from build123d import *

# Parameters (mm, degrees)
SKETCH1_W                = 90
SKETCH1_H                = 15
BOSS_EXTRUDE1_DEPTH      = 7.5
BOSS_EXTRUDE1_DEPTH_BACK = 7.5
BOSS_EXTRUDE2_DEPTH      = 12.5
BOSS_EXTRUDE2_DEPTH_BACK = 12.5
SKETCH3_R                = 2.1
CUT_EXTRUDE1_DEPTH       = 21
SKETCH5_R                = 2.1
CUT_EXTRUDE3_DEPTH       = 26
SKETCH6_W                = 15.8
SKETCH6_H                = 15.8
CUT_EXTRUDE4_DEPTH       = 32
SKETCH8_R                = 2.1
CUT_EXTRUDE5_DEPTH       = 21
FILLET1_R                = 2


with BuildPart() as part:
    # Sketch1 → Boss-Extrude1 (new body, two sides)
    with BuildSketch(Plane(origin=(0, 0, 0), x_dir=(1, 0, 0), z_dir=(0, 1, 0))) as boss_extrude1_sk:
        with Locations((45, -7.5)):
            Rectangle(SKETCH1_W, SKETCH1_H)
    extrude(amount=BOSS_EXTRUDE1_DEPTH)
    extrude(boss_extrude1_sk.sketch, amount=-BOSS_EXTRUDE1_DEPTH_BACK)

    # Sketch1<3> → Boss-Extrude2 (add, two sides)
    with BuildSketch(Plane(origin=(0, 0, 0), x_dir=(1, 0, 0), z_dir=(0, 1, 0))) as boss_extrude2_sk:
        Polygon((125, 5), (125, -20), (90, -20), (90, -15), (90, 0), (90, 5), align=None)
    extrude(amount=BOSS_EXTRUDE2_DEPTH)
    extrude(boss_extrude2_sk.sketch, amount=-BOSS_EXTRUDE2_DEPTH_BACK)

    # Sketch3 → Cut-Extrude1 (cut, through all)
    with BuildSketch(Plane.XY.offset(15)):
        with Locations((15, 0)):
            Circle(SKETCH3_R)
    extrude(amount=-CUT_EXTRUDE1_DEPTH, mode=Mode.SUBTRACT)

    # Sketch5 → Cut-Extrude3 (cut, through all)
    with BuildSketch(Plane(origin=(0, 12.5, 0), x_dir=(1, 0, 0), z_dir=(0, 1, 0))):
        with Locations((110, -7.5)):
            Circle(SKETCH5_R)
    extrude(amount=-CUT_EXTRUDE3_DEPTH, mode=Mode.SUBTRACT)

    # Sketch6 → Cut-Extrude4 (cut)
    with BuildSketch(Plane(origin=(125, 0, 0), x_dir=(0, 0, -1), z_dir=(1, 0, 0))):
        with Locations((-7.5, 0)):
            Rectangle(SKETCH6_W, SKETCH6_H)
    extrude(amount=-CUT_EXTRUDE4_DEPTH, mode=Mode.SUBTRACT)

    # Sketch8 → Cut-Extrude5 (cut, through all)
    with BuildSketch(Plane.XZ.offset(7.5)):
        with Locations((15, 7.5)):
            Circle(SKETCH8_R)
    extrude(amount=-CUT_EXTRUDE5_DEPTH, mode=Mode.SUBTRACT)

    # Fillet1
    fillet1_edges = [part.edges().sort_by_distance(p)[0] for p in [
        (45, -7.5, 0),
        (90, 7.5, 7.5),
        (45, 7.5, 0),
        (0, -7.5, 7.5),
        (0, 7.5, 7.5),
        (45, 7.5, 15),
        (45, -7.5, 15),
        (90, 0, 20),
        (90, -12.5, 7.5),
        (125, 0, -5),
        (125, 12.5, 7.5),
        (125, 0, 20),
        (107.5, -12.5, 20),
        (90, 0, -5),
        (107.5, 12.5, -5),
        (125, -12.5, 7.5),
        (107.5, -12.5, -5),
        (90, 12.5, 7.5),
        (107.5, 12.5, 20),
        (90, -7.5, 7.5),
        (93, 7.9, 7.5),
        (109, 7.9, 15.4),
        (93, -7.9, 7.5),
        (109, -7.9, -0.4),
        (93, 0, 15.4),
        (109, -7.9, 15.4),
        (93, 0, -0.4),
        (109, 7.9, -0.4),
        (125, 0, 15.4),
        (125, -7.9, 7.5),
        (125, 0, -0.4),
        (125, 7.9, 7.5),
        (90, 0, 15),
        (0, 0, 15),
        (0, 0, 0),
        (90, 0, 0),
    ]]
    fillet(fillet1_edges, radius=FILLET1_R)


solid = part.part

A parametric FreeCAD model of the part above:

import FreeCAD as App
import Part
import Sketcher


def edges_at(feature, points):
    """Names of the edges that pass closest to the given points."""
    edges = feature.Shape.Edges
    near = lambda p: min(range(len(edges)), key=lambda i: edges[i].distToShape(Part.Vertex(*p))[0])
    return sorted({f"Edge{near(p) + 1}" for p in points})

doc = App.newDocument("Part")
body = doc.addObject("PartDesign::Body", "Body")

# Sketch on XZ plane
sketch1 = body.newObject("Sketcher::SketchObject", "Sketch")
sketch1.AttachmentSupport = (doc.getObject("XZ_Plane"), [""])
sketch1.MapMode = "FlatFace"
sketch1.addGeometry([
    Part.LineSegment(App.Vector(0, 0, 0), App.Vector(0, 15, 0)),
    Part.LineSegment(App.Vector(0, 15, 0), App.Vector(90, 15, 0)),
    Part.LineSegment(App.Vector(90, 15, 0), App.Vector(90, 0, 0)),
    Part.LineSegment(App.Vector(90, 0, 0), App.Vector(0, 0, 0)),
], False)
sketch1.addConstraint([
    Sketcher.Constraint("Coincident", 0, 2, 1, 1),
    Sketcher.Constraint("Coincident", 1, 2, 2, 1),
    Sketcher.Constraint("Coincident", 2, 2, 3, 1),
    Sketcher.Constraint("Coincident", 3, 2, 0, 1),
    Sketcher.Constraint("Vertical", 0),
    Sketcher.Constraint("Horizontal", 1),
    Sketcher.Constraint("Vertical", 2),
    Sketcher.Constraint("Horizontal", 3),
    Sketcher.Constraint("Coincident", 3, 2, -1, 1),
    Sketcher.Constraint("DistanceX", 1, 1, 1, 2, 90.0),
    Sketcher.Constraint("DistanceY", 0, 1, 0, 2, 15.0),
])
pad1 = body.newObject("PartDesign::Pad", "Pad")
pad1.Profile = sketch1
pad1.Type = "TwoLengths"
pad1.Length = 7.5
pad1.Length2 = 7.5
pad1.Reversed = True

# Sketch on XZ plane
sketch2 = body.newObject("Sketcher::SketchObject", "Sketch001")
sketch2.AttachmentSupport = (doc.getObject("XZ_Plane"), [""])
sketch2.MapMode = "FlatFace"
sketch2.addGeometry([
    Part.LineSegment(App.Vector(125, 20, 0), App.Vector(125, -5, 0)),
    Part.LineSegment(App.Vector(125, -5, 0), App.Vector(90, -5, 0)),
    Part.LineSegment(App.Vector(90, -5, 0), App.Vector(90, 20, 0)),
    Part.LineSegment(App.Vector(90, 20, 0), App.Vector(125, 20, 0)),
], False)
sketch2.addConstraint([
    Sketcher.Constraint("Coincident", 0, 2, 1, 1),
    Sketcher.Constraint("Coincident", 1, 2, 2, 1),
    Sketcher.Constraint("Coincident", 2, 2, 3, 1),
    Sketcher.Constraint("Coincident", 3, 2, 0, 1),
    Sketcher.Constraint("Vertical", 0),
    Sketcher.Constraint("Horizontal", 1),
    Sketcher.Constraint("Vertical", 2),
    Sketcher.Constraint("Horizontal", 3),
    Sketcher.Constraint("DistanceX", 1, 2, 1, 1, 35.0),
    Sketcher.Constraint("DistanceY", 0, 2, 0, 1, 25.0),
    Sketcher.Constraint("DistanceX", -1, 1, 0, 2, 125.0),
    Sketcher.Constraint("DistanceY", 0, 2, -1, 1, 5.0),
])
pad2 = body.newObject("PartDesign::Pad", "Pad001")
pad2.Profile = sketch2
pad2.Type = "TwoLengths"
pad2.Length = 12.5
pad2.Length2 = 12.5
pad2.Reversed = True

# Sketch on XY plane
sketch3 = body.newObject("Sketcher::SketchObject", "Sketch002")
sketch3.AttachmentSupport = (doc.getObject("XY_Plane"), [""])
sketch3.MapMode = "FlatFace"
sketch3.AttachmentOffset = App.Placement(App.Vector(0, 0, 15), App.Rotation())
sketch3.addGeometry(Part.Circle(App.Vector(15, 0, 0), App.Vector(0, 0, 1), 2.1), False)
sketch3.addConstraint([
    Sketcher.Constraint("PointOnObject", 0, 3, -1),
    Sketcher.Constraint("Diameter", 0, 4.2),
    Sketcher.Constraint("DistanceX", -1, 1, 0, 3, 15.0),
])
pocket1 = body.newObject("PartDesign::Pocket", "Pocket")
pocket1.Profile = sketch3
pocket1.Type = "ThroughAll"

# Sketch on XZ plane
sketch4 = body.newObject("Sketcher::SketchObject", "Sketch003")
sketch4.AttachmentSupport = (doc.getObject("XZ_Plane"), [""])
sketch4.MapMode = "FlatFace"
sketch4.AttachmentOffset = App.Placement(App.Vector(0, 0, -12.5), App.Rotation())
sketch4.addGeometry(Part.Circle(App.Vector(110, 7.5, 0), App.Vector(0, 0, 1), 2.1), False)
sketch4.addConstraint([
    Sketcher.Constraint("Diameter", 0, 4.2),
    Sketcher.Constraint("DistanceX", -1, 1, 0, 3, 110.0),
    Sketcher.Constraint("DistanceY", -1, 1, 0, 3, 7.5),
])
pocket2 = body.newObject("PartDesign::Pocket", "Pocket001")
pocket2.Profile = sketch4
pocket2.Type = "ThroughAll"
pocket2.Reversed = True

# Sketch on YZ plane
sketch5 = body.newObject("Sketcher::SketchObject", "Sketch004")
sketch5.AttachmentSupport = (doc.getObject("YZ_Plane"), [""])
sketch5.MapMode = "FlatFace"
sketch5.AttachmentOffset = App.Placement(App.Vector(0, 0, 125), App.Rotation())
sketch5.addGeometry([
    Part.LineSegment(App.Vector(8, 15, 0), App.Vector(-8, 15, 0)),
    Part.LineSegment(App.Vector(-8, 15, 0), App.Vector(-8, 0, 0)),
    Part.LineSegment(App.Vector(-8, 0, 0), App.Vector(8, 0, 0)),
    Part.LineSegment(App.Vector(8, 0, 0), App.Vector(8, 15, 0)),
], False)
sketch5.addConstraint([
    Sketcher.Constraint("Coincident", 0, 2, 1, 1),
    Sketcher.Constraint("Coincident", 1, 2, 2, 1),
    Sketcher.Constraint("Coincident", 2, 2, 3, 1),
    Sketcher.Constraint("Coincident", 3, 2, 0, 1),
    Sketcher.Constraint("Horizontal", 0),
    Sketcher.Constraint("Vertical", 1),
    Sketcher.Constraint("Horizontal", 2),
    Sketcher.Constraint("Vertical", 3),
    Sketcher.Constraint("Equal", 2, 1),
    Sketcher.Constraint("DistanceX", 0, 2, 0, 1, 15.8),
    Sketcher.Constraint("DistanceX", 0, 2, -1, 1, 7.9),
    Sketcher.Constraint("DistanceY", -1, 1, 0, 2, 15.4),
])
pocket3 = body.newObject("PartDesign::Pocket", "Pocket002")
pocket3.Profile = sketch5
pocket3.Length = 32

# Sketch on XZ plane
sketch6 = body.newObject("Sketcher::SketchObject", "Sketch005")
sketch6.AttachmentSupport = (doc.getObject("XZ_Plane"), [""])
sketch6.MapMode = "FlatFace"
sketch6.AttachmentOffset = App.Placement(App.Vector(0, 0, 7.5), App.Rotation())
sketch6.addGeometry(Part.Circle(App.Vector(15, 7.5, 0), App.Vector(0, 0, 1), 2.1), False)
sketch6.addConstraint([
    Sketcher.Constraint("Diameter", 0, 4.2),
    Sketcher.Constraint("DistanceX", -1, 1, 0, 3, 15.0),
    Sketcher.Constraint("DistanceY", -1, 1, 0, 3, 7.5),
])
pocket4 = body.newObject("PartDesign::Pocket", "Pocket003")
pocket4.Profile = sketch6
pocket4.Type = "ThroughAll"
doc.recompute()

fillet = body.newObject("PartDesign::Fillet", "Fillet")
fillet.Base = (pocket4, edges_at(pocket4, [
    (45, -7.5, 0),
    (90, 7.5, 7.5),
    (45, 7.5, 0),
    (0, -7.5, 7.5),
    (0, 7.5, 7.5),
    (45, 7.5, 15),
    (45, -7.5, 15),
    (90, 0, 20),
    (90, -12.5, 7.5),
    (125, 0, -5),
    (125, 12.5, 7.5),
    (125, 0, 20),
    (107.5, -12.5, 20),
    (90, 0, -5),
    (107.5, 12.5, -5),
    (125, -12.5, 7.5),
    (107.5, -12.5, -5),
    (90, 12.5, 7.5),
    (107.5, 12.5, 20),
    (90, -7.5, 7.5),
    (93, 7.9, 7.5),
    (109, 7.9, 15.4),
    (93, -7.9, 7.5),
    (109, -7.9, -0.4),
    (93, 0, 15.4),
    (109, -7.9, 15.4),
    (93, 0, -0.4),
    (109, 7.9, -0.4),
    (125, 0, 15.4),
    (125, -7.9, 7.5),
    (125, 0, -0.4),
    (125, 7.9, 7.5),
    (90, 0, 15),
    (0, 0, 15),
    (0, 0, 0),
    (90, 0, 0),
]))
fillet.Radius = 2

doc.recompute()
